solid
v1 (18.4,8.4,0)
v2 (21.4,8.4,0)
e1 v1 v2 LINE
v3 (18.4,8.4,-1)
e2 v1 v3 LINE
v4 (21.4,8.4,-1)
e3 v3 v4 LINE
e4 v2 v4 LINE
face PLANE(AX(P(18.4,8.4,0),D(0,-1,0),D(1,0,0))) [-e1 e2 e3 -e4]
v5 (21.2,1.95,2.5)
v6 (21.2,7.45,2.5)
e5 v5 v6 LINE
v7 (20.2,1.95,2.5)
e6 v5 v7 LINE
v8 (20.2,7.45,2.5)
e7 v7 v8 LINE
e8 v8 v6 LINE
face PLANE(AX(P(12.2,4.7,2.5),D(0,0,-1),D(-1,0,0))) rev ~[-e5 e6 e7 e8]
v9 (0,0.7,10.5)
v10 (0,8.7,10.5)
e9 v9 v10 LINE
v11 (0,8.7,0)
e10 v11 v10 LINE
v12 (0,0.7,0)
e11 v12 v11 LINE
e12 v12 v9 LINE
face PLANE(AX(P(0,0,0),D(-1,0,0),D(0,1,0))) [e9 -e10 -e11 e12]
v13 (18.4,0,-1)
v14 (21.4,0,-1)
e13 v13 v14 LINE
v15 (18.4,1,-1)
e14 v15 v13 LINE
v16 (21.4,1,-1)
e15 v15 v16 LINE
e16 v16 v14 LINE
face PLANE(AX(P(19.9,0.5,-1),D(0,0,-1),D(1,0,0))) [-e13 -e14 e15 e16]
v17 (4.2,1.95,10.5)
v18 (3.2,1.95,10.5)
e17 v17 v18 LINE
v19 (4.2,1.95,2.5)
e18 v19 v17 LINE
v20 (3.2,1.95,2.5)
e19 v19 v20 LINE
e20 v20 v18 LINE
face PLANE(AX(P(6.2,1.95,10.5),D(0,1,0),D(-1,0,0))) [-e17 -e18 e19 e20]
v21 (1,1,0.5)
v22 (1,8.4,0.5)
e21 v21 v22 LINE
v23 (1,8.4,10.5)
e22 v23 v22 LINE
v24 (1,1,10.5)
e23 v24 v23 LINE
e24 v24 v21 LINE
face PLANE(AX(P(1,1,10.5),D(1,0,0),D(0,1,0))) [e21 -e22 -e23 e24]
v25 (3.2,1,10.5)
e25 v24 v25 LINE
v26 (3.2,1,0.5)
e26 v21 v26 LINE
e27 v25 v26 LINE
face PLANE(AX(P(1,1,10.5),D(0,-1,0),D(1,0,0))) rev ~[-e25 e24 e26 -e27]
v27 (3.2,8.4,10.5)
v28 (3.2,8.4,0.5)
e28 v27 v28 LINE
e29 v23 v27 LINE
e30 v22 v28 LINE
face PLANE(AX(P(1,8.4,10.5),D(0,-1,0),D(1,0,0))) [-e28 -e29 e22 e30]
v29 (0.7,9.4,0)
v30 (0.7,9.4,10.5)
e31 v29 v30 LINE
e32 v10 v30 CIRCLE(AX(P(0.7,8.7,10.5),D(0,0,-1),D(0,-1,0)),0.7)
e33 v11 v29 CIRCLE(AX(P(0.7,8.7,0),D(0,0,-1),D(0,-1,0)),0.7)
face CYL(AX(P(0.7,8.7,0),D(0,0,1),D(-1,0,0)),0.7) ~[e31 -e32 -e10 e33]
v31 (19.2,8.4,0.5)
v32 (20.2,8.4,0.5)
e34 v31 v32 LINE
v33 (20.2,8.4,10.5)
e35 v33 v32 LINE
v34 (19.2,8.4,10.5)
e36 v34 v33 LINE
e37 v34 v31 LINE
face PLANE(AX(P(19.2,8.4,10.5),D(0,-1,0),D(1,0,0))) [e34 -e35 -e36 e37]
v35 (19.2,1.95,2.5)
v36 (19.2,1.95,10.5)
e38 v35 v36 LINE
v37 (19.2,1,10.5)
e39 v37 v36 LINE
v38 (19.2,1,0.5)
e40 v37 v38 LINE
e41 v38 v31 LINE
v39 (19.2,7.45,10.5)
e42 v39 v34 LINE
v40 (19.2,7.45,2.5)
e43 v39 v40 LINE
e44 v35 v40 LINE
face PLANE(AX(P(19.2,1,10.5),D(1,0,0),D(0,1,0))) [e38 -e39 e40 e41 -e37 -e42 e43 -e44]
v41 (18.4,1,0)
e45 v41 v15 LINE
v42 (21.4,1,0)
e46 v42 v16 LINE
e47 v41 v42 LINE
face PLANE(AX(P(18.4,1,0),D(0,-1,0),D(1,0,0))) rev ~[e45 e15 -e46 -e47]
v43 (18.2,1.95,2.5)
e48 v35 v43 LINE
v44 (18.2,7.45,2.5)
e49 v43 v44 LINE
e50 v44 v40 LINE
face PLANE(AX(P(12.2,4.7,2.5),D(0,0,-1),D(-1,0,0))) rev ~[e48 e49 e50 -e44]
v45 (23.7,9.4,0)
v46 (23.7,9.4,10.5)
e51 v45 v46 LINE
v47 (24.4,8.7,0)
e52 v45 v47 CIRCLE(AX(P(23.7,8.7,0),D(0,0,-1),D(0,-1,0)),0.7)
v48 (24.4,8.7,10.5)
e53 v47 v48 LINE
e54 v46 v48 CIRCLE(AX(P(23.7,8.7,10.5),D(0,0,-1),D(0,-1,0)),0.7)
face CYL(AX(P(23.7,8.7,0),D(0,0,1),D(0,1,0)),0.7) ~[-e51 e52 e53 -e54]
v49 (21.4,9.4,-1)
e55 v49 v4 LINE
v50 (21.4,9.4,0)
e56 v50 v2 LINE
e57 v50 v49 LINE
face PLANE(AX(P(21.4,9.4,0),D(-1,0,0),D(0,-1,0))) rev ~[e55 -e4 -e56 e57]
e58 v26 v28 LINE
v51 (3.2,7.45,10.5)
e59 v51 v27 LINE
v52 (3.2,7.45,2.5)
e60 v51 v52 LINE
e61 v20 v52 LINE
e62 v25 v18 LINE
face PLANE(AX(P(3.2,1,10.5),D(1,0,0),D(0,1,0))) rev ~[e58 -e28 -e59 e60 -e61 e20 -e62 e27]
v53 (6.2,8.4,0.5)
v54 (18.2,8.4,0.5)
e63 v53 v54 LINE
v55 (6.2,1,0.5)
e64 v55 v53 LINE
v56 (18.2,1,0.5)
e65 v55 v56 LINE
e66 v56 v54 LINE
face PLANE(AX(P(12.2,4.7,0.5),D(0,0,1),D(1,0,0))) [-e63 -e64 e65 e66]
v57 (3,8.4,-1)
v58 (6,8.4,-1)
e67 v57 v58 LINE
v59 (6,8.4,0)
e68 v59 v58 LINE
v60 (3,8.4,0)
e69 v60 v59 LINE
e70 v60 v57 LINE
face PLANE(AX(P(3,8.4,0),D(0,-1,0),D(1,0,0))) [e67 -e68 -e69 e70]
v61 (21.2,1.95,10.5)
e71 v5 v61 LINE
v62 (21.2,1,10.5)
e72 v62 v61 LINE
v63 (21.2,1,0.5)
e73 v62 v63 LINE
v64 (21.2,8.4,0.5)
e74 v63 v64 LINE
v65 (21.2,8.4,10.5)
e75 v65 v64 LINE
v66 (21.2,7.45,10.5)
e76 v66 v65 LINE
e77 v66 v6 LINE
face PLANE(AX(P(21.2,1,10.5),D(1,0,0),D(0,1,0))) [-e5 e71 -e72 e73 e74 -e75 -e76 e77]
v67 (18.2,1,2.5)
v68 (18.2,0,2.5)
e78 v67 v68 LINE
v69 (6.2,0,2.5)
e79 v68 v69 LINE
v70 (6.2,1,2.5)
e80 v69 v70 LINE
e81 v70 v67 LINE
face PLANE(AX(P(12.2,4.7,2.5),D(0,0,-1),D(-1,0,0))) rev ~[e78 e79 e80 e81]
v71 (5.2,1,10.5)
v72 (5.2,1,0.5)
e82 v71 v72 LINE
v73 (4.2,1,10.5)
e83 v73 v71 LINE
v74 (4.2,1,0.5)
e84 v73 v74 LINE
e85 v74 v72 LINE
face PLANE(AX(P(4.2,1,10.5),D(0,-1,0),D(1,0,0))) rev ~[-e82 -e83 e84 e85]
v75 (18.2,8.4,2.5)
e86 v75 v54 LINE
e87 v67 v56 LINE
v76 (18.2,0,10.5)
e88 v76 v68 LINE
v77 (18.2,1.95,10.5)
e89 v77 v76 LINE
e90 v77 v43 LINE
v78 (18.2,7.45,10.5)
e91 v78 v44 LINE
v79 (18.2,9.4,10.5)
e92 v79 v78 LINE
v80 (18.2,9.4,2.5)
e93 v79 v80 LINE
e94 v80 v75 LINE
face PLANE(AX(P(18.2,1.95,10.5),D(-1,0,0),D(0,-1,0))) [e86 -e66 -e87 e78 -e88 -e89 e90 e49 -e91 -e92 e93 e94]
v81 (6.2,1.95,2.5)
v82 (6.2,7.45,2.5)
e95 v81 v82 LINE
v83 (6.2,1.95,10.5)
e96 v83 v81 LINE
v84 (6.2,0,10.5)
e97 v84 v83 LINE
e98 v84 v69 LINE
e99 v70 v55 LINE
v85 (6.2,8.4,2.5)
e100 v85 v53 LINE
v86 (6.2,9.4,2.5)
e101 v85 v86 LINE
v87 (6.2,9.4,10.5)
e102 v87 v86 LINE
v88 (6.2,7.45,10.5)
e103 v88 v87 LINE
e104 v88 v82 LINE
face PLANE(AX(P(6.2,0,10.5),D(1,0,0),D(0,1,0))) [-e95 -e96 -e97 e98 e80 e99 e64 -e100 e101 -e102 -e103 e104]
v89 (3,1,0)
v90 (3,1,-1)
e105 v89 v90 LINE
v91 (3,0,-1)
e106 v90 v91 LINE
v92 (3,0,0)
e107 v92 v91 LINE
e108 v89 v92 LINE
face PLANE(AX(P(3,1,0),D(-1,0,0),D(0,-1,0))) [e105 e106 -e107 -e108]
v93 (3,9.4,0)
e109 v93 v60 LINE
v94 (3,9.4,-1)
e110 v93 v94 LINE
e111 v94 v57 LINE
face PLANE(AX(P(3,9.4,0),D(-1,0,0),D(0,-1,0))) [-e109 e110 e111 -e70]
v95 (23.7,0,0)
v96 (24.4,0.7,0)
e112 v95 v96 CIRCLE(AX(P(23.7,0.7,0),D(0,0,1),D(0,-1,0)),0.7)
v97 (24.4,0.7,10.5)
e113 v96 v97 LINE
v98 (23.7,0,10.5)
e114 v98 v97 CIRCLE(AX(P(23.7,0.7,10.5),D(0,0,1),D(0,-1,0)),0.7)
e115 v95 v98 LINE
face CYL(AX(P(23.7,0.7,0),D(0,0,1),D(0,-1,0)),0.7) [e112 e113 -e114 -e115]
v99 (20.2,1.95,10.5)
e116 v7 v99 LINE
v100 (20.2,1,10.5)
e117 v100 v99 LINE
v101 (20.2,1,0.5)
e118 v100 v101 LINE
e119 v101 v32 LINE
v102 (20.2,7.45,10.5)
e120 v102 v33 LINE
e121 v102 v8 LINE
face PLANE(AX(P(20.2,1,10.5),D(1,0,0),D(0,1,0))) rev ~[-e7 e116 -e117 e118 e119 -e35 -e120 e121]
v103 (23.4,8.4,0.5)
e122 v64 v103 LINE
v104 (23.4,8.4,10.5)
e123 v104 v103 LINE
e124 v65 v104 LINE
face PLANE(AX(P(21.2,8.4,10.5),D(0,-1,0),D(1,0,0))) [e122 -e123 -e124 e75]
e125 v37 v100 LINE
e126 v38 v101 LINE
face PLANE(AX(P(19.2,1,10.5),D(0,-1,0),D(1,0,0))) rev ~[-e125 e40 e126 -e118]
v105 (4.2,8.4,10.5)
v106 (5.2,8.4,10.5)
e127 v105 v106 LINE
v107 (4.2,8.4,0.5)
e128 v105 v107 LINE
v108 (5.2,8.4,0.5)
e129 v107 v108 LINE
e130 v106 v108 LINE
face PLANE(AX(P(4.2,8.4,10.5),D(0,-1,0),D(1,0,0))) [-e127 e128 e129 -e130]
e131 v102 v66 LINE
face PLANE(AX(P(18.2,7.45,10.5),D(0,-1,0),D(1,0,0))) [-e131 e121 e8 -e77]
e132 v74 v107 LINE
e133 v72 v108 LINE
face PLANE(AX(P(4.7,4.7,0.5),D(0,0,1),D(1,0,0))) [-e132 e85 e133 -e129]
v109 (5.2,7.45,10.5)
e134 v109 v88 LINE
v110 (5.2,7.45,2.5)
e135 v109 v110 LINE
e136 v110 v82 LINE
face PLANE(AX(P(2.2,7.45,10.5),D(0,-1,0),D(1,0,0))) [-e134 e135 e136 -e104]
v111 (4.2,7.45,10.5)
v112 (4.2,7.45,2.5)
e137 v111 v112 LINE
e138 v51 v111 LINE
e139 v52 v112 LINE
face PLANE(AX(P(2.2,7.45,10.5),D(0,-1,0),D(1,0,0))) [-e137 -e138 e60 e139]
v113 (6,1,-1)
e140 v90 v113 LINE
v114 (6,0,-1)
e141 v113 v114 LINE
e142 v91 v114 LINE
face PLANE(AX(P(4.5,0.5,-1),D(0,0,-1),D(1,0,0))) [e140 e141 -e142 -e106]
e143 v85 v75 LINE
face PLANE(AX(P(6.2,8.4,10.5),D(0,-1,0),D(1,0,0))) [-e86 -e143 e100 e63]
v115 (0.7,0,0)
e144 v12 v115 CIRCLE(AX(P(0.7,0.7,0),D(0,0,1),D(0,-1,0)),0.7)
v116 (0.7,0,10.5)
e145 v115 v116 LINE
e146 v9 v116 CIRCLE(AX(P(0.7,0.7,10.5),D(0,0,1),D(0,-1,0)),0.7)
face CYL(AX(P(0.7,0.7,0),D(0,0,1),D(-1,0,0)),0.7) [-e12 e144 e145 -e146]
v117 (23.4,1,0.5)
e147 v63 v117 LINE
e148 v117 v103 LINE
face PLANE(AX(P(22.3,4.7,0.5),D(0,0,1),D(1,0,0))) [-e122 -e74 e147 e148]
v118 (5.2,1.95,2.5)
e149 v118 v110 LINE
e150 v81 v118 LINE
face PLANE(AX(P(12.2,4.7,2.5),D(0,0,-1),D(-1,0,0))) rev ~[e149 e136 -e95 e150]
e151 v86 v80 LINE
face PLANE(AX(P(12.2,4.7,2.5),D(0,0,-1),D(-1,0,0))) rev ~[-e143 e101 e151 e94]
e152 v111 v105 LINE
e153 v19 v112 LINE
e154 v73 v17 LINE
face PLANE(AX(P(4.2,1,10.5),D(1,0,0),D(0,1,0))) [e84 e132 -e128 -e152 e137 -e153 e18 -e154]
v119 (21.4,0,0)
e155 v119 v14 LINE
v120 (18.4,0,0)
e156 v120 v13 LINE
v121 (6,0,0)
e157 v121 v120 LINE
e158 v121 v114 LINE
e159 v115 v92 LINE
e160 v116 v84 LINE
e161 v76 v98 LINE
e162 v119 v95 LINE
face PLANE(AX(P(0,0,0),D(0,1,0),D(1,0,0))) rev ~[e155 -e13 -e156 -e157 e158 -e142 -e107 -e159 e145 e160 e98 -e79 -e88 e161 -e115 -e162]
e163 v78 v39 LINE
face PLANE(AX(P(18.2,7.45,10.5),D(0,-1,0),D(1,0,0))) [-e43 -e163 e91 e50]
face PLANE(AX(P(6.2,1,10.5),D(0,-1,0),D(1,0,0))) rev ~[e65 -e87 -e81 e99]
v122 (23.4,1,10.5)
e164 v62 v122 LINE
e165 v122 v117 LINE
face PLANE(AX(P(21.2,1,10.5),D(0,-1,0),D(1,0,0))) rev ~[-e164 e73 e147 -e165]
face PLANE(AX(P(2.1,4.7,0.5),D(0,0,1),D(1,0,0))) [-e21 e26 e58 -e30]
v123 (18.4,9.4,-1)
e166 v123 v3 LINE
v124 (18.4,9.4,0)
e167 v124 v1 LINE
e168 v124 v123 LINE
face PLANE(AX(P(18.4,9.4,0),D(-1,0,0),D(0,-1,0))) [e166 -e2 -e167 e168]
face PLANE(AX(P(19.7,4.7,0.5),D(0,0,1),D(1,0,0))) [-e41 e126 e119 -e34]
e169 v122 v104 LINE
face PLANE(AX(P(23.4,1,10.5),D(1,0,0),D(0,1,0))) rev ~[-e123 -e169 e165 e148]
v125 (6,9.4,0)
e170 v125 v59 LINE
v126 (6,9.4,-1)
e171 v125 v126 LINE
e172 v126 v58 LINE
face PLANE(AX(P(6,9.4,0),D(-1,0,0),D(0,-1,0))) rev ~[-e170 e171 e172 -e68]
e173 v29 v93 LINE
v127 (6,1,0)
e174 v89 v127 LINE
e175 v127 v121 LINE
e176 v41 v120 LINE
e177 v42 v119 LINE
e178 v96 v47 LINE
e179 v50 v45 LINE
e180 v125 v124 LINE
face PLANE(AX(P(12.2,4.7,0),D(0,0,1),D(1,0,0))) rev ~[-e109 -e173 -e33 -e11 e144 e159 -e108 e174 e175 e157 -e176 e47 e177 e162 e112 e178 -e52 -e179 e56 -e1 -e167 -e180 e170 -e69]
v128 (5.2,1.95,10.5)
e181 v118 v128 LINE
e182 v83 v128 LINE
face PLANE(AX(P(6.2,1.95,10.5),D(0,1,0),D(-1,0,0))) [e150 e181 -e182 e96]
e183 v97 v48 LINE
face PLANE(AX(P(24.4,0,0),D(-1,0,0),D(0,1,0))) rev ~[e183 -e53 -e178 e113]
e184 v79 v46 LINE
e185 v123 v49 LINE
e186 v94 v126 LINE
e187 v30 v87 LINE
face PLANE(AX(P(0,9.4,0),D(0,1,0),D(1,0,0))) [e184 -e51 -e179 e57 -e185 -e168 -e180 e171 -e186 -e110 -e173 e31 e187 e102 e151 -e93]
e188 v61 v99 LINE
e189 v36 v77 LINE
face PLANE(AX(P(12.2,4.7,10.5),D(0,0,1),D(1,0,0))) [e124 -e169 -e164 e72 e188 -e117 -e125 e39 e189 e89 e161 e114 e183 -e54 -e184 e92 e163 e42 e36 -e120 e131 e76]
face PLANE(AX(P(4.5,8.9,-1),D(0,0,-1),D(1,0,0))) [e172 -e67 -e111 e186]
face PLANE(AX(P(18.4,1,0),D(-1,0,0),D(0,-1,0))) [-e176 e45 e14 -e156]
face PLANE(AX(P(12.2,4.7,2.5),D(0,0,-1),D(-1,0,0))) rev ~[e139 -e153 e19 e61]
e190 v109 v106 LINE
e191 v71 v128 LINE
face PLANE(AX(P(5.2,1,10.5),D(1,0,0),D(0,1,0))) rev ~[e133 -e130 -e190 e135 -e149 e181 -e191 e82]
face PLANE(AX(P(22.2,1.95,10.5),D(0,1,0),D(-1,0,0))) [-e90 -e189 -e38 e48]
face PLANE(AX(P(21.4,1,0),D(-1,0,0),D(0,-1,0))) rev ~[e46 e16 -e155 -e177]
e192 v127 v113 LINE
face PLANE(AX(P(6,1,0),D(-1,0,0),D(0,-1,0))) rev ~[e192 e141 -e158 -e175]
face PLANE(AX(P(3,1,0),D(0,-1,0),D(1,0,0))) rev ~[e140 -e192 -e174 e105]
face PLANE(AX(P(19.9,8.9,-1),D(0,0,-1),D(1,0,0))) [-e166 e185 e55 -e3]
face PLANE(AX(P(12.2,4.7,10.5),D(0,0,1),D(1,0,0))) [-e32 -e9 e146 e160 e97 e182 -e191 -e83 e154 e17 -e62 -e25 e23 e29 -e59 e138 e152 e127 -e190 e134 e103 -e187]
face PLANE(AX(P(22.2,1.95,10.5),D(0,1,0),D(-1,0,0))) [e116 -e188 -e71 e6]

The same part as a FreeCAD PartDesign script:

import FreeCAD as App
import Part
import Sketcher
from FreeCAD import Vector
Q = App.Units.Quantity


def edges_at(feature, points):
    """Names of the edges that pass closest to the given points."""
    edges = feature.Shape.Edges
    near = lambda p: min(range(len(edges)), key=lambda i: edges[i].distToShape(Part.Vertex(*p))[0])
    return sorted({f"Edge{near(p) + 1}" for p in points})


def add_polygon(sketch, points):
    """Adds a closed chain of lines whose ends are joined by coincident constraints."""
    first, n = sketch.GeometryCount, len(points)
    for a, b in zip(points, points[1:] + points[:1]):
        sketch.addGeometry(Part.LineSegment(App.Vector(*a, 0), App.Vector(*b, 0)), False)
    for i in range(n):
        sketch.addConstraint(Sketcher.Constraint("Coincident", first + i, 2, first + (i + 1) % n, 1))

doc = App.newDocument("Part")
body = doc.addObject("PartDesign::Body", "Body")

sketch1 = body.newObject("Sketcher::SketchObject", "Sketch")
sketch1.AttachmentSupport = (doc.getObject("XY_Plane"), [""])
sketch1.MapMode = "FlatFace"
add_polygon(sketch1, [(0, 9), (0, 0), (24, 0), (24, 9)])
sketch1.addConstraint([
    Sketcher.Constraint("Vertical", 0),
    Sketcher.Constraint("Horizontal", 1),
    Sketcher.Constraint("Vertical", 2),
    Sketcher.Constraint("Horizontal", 3),
    Sketcher.Constraint("Coincident", 0, 2, -1, 1),
    Sketcher.Constraint("DistanceX", 1, 1, 1, 2, Q("24.4 mm")),
    Sketcher.Constraint("DistanceY", 0, 2, 0, 1, Q("9.4 mm")),
])
pad1 = body.newObject("PartDesign::Pad", "Pad")
pad1.Profile = sketch1
pad1.Length = 10.5

sketch2 = body.newObject("Sketcher::SketchObject", "Sketch001")
sketch2.AttachmentSupport = (doc.getObject("XY_Plane"), [""])
sketch2.MapMode = "FlatFace"
sketch2.AttachmentOffset = App.Placement(Vector(0, 0, 10.5), App.Rotation())
add_polygon(sketch2, [(21.2, 8.4), (21.2, 1), (23.4, 1), (23.4, 8.4)])
add_polygon(sketch2, [(1, 8.4), (1, 1), (3.2, 1), (3.2, 8.4)])
add_polygon(sketch2, [(6.2, 8.4), (6.2, 1), (18.2, 1), (18.2, 8.4)])
add_polygon(sketch2, [(4.2, 8.4), (4.2, 1), (5.2, 1), (5.2, 8.4)])
add_polygon(sketch2, [(19.2, 8.4), (19.2, 1), (20.2, 1), (20.2, 8.4)])
sketch2.addConstraint([
    Sketcher.Constraint("Vertical", 0),
    Sketcher.Constraint("Horizontal", 1),
    Sketcher.Constraint("Vertical", 2),
    Sketcher.Constraint("Horizontal", 3),
    Sketcher.Constraint("Vertical", 4),
    Sketcher.Constraint("Horizontal", 5),
    Sketcher.Constraint("Vertical", 6),
    Sketcher.Constraint("Horizontal", 7),
    Sketcher.Constraint("Vertical", 8),
    Sketcher.Constraint("Horizontal", 9),
    Sketcher.Constraint("Vertical", 10),
    Sketcher.Constraint("Horizontal", 11),
    Sketcher.Constraint("Vertical", 12),
    Sketcher.Constraint("Horizontal", 13),
    Sketcher.Constraint("Vertical", 14),
    Sketcher.Constraint("Horizontal", 15),
    Sketcher.Constraint("Vertical", 16),
    Sketcher.Constraint("Horizontal", 17),
    Sketcher.Constraint("Vertical", 18),
    Sketcher.Constraint("Horizontal", 19),
    Sketcher.Constraint("Horizontal", 1, 2, 4, 2),
    Sketcher.Constraint("Horizontal", 3, 2, 6, 2),
    Sketcher.Constraint("Horizontal", 5, 2, 8, 2),
    Sketcher.Constraint("Horizontal", 7, 2, 10, 2),
    Sketcher.Constraint("Horizontal", 9, 2, 12, 2),
    Sketcher.Constraint("Horizontal", 11, 2, 14, 2),
    Sketcher.Constraint("Horizontal", 13, 2, 16, 2),
    Sketcher.Constraint("Horizontal", 15, 2, 18, 2),
    Sketcher.Constraint("Equal", 3, 5),
    Sketcher.Constraint("Equal", 15, 17),
    Sketcher.Constraint("DistanceX", 9, 1, 9, 2, Q("12 mm")),
    Sketcher.Constraint("DistanceX", 13, 1, 13, 2, Q("1 mm")),
    Sketcher.Constraint("DistanceX", 1, 1, 1, 2, Q("2.2 mm")),
    Sketcher.Constraint("DistanceY", 0, 2, 0, 1, Q("7.4 mm")),
    Sketcher.Constraint("DistanceY", -1, 1, 0, 2, Q("1 mm")),
    Sketcher.Constraint("DistanceX", -1, 1, 4, 2, Q("1 mm")),
    Sketcher.Constraint("DistanceX", 5, 2, 0, 2, Q("18 mm")),
    Sketcher.Constraint("DistanceX", 5, 2, 8, 2, Q("3 mm")),
    Sketcher.Constraint("DistanceX", 5, 2, 12, 2, Q("1 mm")),
    Sketcher.Constraint("DistanceX", 9, 2, 16, 2, Q("1 mm")),
])
pocket1 = body.newObject("PartDesign::Pocket", "Pocket")
pocket1.Profile = sketch2
pocket1.Length = 10

sketch3 = body.newObject("Sketcher::SketchObject", "Sketch002")
sketch3.AttachmentSupport = (doc.getObject("XY_Plane"), [""])
sketch3.MapMode = "FlatFace"
sketch3.AttachmentOffset = App.Placement(Vector(0, 0, 10.5), App.Rotation())
add_polygon(sketch3, [(18.2, 9.4), (6.2, 9.4), (6.2, 7.5), (2.2, 7.5), (2.2, 1.9), (6.2, 1.9), (6.2, 0), (18.2, 0), (18.2, 1.9), (22.2, 1.9), (22.2, 7.5), (18.2, 7.5)])
sketch3.addConstraint([
    Sketcher.Constraint("Horizontal", 0),
    Sketcher.Constraint("Vertical", 1),
    Sketcher.Constraint("Horizontal", 2),
    Sketcher.Constraint("Vertical", 3),
    Sketcher.Constraint("Horizontal", 4),
    Sketcher.Constraint("Vertical", 5),
    Sketcher.Constraint("Horizontal", 6),
    Sketcher.Constraint("Vertical", 7),
    Sketcher.Constraint("Horizontal", 8),
    Sketcher.Constraint("Vertical", 9),
    Sketcher.Constraint("Horizontal", 10),
    Sketcher.Constraint("Vertical", 11),
    Sketcher.Constraint("PointOnObject", 5, 2, -1),
    Sketcher.Constraint("Horizontal", 4, 2, 7, 2),
    Sketcher.Constraint("Horizontal", 2, 2, 9, 2),
    Sketcher.Constraint("Vertical", 1, 2, 4, 2),
    Sketcher.Constraint("Vertical", 7, 2, 10, 2),
    Sketcher.Constraint("Equal", 4, 8),
    Sketcher.Constraint("Equal", 1, 5),
    Sketcher.Constraint("DistanceX", 0, 2, 0, 1, Q("12 mm")),
    Sketcher.Constraint("DistanceX", 2, 2, 2, 1, Q("4 mm")),
    Sketcher.Constraint("DistanceY", 3, 2, 3, 1, Q("5.5 mm")),
    Sketcher.Constraint("DistanceY", 1, 2, 1, 1, Q("1.95 mm")),
    Sketcher.Constraint("DistanceX", -1, 1, 0, 2, Q("6.2 mm")),
])
pocket2 = body.newObject("PartDesign::Pocket", "Pocket001")
pocket2.Profile = sketch3
pocket2.Length = 8

sketch4 = body.newObject("Sketcher::SketchObject", "Sketch003")
sketch4.AttachmentSupport = (doc.getObject("XY_Plane"), [""])
sketch4.MapMode = "FlatFace"
add_polygon(sketch4, [(3, 0), (3, 1), (6, 1), (6, 0)])
add_polygon(sketch4, [(18.4, 0), (18.4, 1), (21.4, 1), (21.4, 0)])
add_polygon(sketch4, [(3, 8.4), (3, 9.4), (6, 9.4), (6, 8.4)])
add_polygon(sketch4, [(18.4, 8.4), (18.4, 9.4), (21.4, 9.4), (21.4, 8.4)])
sketch4.addConstraint([
    Sketcher.Constraint("Vertical", 0),
    Sketcher.Constraint("Horizontal", 1),
    Sketcher.Constraint("Vertical", 2),
    Sketcher.Constraint("Horizontal", 3),
    Sketcher.Constraint("Vertical", 4),
    Sketcher.Constraint("Horizontal", 5),
    Sketcher.Constraint("Vertical", 6),
    Sketcher.Constraint("Horizontal", 7),
    Sketcher.Constraint("Vertical", 8),
    Sketcher.Constraint("Horizontal", 9),
    Sketcher.Constraint("Vertical", 10),
    Sketcher.Constraint("Horizontal", 11),
    Sketcher.Constraint("Vertical", 12),
    Sketcher.Constraint("Horizontal", 13),
    Sketcher.Constraint("Vertical", 14),
    Sketcher.Constraint("Horizontal", 15),
    Sketcher.Constraint("PointOnObject", 2, 2, -1),
    Sketcher.Constraint("PointOnObject", 6, 2, -1),
    Sketcher.Constraint("Horizontal", 1, 2, 4, 2),
    Sketcher.Constraint("Horizontal", 9, 2, 12, 2),
    Sketcher.Constraint("Horizontal", 11, 2, 14, 2),
    Sketcher.Constraint("Vertical", 3, 2, 8, 2),
    Sketcher.Constraint("Vertical", 2, 2, 9, 2),
    Sketcher.Constraint("Vertical", 7, 2, 12, 2),
    Sketcher.Constraint("Vertical", 6, 2, 13, 2),
    Sketcher.Constraint("Equal", 3, 5),
    Sketcher.Constraint("Equal", 6, 8),
    Sketcher.Constraint("DistanceX", 1, 1, 1, 2, Q("3 mm")),
    Sketcher.Constraint("DistanceY", 0, 1, 0, 2, Q("1 mm")),
    Sketcher.Constraint("DistanceX", -1, 1, 0, 2, Q("3 mm")),
    Sketcher.Constraint("DistanceX", -1, 1, 4, 2, Q("18.4 mm")),
    Sketcher.Constraint("DistanceY", -1, 1, 8, 2, Q("9.4 mm")),
])
pad2 = body.newObject("PartDesign::Pad", "Pad001")
pad2.Profile = sketch4
pad2.Length = 1
pad2.Reversed = True
doc.recompute()

fillet = body.newObject("PartDesign::Fillet", "Fillet")
fillet.Base = (pad2, edges_at(pad2, [
    (24.4, 0, 5.25),
    (0, 0, 5.25),
    (24.4, 9.4, 5.25),
    (0, 9.4, 5.25),
]))
fillet.Radius = 0.7

doc.recompute()
